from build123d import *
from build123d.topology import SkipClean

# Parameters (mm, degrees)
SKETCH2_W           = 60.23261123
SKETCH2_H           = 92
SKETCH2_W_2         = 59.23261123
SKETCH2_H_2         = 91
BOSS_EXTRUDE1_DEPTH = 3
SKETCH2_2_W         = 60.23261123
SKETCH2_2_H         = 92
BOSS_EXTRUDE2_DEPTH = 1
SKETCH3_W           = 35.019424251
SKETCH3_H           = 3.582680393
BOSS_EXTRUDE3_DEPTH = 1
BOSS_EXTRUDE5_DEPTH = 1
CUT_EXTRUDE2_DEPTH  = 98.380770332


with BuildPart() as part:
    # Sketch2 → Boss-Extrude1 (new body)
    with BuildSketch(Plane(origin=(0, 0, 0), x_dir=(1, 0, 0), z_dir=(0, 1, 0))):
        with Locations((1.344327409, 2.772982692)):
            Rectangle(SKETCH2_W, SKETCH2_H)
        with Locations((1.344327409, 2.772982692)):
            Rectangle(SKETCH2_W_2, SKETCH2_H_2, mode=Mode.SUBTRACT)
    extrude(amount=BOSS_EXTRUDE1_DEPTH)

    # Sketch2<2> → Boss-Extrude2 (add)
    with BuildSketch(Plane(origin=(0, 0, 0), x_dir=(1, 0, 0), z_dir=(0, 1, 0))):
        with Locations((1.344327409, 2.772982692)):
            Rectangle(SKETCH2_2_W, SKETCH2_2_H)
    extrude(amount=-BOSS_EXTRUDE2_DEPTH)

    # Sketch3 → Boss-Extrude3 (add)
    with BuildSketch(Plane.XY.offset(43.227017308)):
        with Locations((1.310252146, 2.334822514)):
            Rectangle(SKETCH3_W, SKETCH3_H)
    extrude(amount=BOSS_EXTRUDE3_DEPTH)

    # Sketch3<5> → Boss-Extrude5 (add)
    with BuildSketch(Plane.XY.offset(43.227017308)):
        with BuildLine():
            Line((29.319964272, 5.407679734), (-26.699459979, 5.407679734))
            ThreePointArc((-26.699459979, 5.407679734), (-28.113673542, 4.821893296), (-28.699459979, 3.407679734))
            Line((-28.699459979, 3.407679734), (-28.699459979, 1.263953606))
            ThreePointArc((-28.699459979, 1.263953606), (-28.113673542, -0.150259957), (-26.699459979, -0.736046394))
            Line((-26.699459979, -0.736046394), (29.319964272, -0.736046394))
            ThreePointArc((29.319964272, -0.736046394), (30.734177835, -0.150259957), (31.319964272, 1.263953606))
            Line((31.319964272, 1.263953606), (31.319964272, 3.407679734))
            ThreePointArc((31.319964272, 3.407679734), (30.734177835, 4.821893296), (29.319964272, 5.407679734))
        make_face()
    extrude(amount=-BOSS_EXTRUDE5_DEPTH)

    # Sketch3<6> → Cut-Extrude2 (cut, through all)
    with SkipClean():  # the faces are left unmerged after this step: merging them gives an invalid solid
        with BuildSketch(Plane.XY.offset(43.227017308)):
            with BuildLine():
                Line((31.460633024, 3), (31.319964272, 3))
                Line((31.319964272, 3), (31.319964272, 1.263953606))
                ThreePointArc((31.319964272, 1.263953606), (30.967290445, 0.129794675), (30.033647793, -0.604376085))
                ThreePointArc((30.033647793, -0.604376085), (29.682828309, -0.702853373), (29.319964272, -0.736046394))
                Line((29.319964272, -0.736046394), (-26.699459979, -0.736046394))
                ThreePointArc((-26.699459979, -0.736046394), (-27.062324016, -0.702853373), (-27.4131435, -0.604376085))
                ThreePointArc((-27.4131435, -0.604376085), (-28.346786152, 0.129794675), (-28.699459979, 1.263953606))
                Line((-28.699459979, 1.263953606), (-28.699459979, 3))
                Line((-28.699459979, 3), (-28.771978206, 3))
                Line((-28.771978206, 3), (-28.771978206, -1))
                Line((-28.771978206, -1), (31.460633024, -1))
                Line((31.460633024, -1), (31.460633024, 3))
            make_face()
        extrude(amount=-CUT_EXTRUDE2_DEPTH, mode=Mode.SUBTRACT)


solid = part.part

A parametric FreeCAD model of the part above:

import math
import FreeCAD as App
import Part
import Sketcher

V = App.Vector

doc = App.newDocument("Part")
params = doc.addObject("Spreadsheet::Sheet", "Params")
for row, (alias, value) in enumerate([
    ("sketch1_height", "92 mm"),
    ("sketch1_height2", "91 mm"),
    ("pad1_length", "3 mm"),
    ("sketch2_height", "92 mm"),
    ("pad2_length", "1 mm"),
    ("pad3_length", "1 mm"),
    ("sketch4_radius", "2 mm"),
    ("pad4_length", "1 mm"),
    ("sketch5_radius", "2 mm"),
    ("sketch5_height", "4 mm"),
], start=1):
    params.set(f"A{row}", alias)
    params.set(f"B{row}", "=" + value)
    params.setAlias(f"B{row}", alias)

body = doc.addObject("PartDesign::Body", "Body")

# Sketch on XZ plane
sketch1 = body.newObject("Sketcher::SketchObject", "Sketch")
sketch1.AttachmentSupport = (doc.getObject("XZ_Plane"), [""])
sketch1.MapMode = "FlatFace"
sketch1.addGeometry([
    Part.LineSegment(V(-29, -49, 0), V(-29, 43, 0)),  # 0
    Part.LineSegment(V(-29, 43, 0), V(31, 43, 0)),  # 1
    Part.LineSegment(V(31, 43, 0), V(31, -49, 0)),  # 2
    Part.LineSegment(V(31, -49, 0), V(-29, -49, 0)),  # 3
    Part.LineSegment(V(31, 43, 0), V(-28, 43, 0)),  # 4
    Part.LineSegment(V(-28, 43, 0), V(-28, -48, 0)),  # 5
    Part.LineSegment(V(-28, -48, 0), V(31, -48, 0)),  # 6
    Part.LineSegment(V(31, -48, 0), V(31, 43, 0)),  # 7
], False)
sketch1.addConstraint([
    Sketcher.Constraint("Coincident", 0, 2, 1, 1),
    Sketcher.Constraint("Coincident", 1, 2, 2, 1),
    Sketcher.Constraint("Coincident", 2, 2, 3, 1),
    Sketcher.Constraint("Coincident", 3, 2, 0, 1),
    Sketcher.Constraint("Coincident", 4, 2, 5, 1),
    Sketcher.Constraint("Coincident", 5, 2, 6, 1),
    Sketcher.Constraint("Coincident", 6, 2, 7, 1),
    Sketcher.Constraint("Coincident", 7, 2, 4, 1),
    Sketcher.Constraint("Vertical", 0),
    Sketcher.Constraint("Horizontal", 1),
    Sketcher.Constraint("Vertical", 2),
    Sketcher.Constraint("Horizontal", 3),
    Sketcher.Constraint("Horizontal", 4),
    Sketcher.Constraint("Vertical", 5),
    Sketcher.Constraint("Horizontal", 6),
    Sketcher.Constraint("Vertical", 7),
    Sketcher.Constraint("DistanceY", 0, 1, 0, 2, 92.0),
    Sketcher.Constraint("DistanceY", 5, 2, 5, 1, 91.0),
    Sketcher.Constraint("DistanceX", 0, 2, 4, 2, 0.5),
    Sketcher.Constraint("DistanceY", 4, 2, 0, 2, 0.5),
    Sketcher.Constraint("DistanceX", 6, 2, 2, 2, 0.5),
    Sketcher.Constraint("DistanceX", 1, 1, 1, 2, 60.232611),
    Sketcher.Constraint("DistanceX", 0, 2, -1, 1, 28.771978),
    Sketcher.Constraint("DistanceY", -1, 1, 0, 2, 43.227017),
])
sketch1.setExpression("Constraints[16]", "Params.sketch1_height")
sketch1.setExpression("Constraints[17]", "Params.sketch1_height2")
pad1 = body.newObject("PartDesign::Pad", "Pad")
pad1.Profile = sketch1
pad1.setExpression("Length", "Params.pad1_length")
pad1.Reversed = True

# Sketch on XZ plane
sketch2 = body.newObject("Sketcher::SketchObject", "Sketch001")
sketch2.AttachmentSupport = (doc.getObject("XZ_Plane"), [""])
sketch2.MapMode = "FlatFace"
sketch2.addGeometry([
    Part.LineSegment(V(-29, -49, 0), V(-29, 43, 0)),
    Part.LineSegment(V(-29, 43, 0), V(31, 43, 0)),
    Part.LineSegment(V(31, 43, 0), V(31, -49, 0)),
    Part.LineSegment(V(31, -49, 0), V(-29, -49, 0)),
], False)
sketch2.addConstraint([
    Sketcher.Constraint("Coincident", 0, 2, 1, 1),
    Sketcher.Constraint("Coincident", 1, 2, 2, 1),
    Sketcher.Constraint("Coincident", 2, 2, 3, 1),
    Sketcher.Constraint("Coincident", 3, 2, 0, 1),
    Sketcher.Constraint("Vertical", 0),
    Sketcher.Constraint("Horizontal", 1),
    Sketcher.Constraint("Vertical", 2),
    Sketcher.Constraint("Horizontal", 3),
    Sketcher.Constraint("DistanceY", 0, 1, 0, 2, 92.0),
    Sketcher.Constraint("DistanceX", 1, 1, 1, 2, 60.232611),
    Sketcher.Constraint("DistanceX", 0, 2, -1, 1, 28.771978),
    Sketcher.Constraint("DistanceY", -1, 1, 0, 2, 43.227017),
])
sketch2.setExpression("Constraints[8]", "Params.sketch2_height")
pad2 = body.newObject("PartDesign::Pad", "Pad001")
pad2.Profile = sketch2
pad2.setExpression("Length", "Params.pad2_length")

# Sketch on XY plane
sketch3 = body.newObject("Sketcher::SketchObject", "Sketch002")
sketch3.AttachmentSupport = (doc.getObject("XY_Plane"), [""])
sketch3.MapMode = "FlatFace"
sketch3.AttachmentOffset = App.Placement(V(0, 0, 43.227017), App.Rotation())
sketch3.addGeometry([
    Part.LineSegment(V(-16.2, 4.1, 0), V(-16.2, 0.5, 0)),
    Part.LineSegment(V(-16.2, 0.5, 0), V(18.8, 0.5, 0)),
    Part.LineSegment(V(18.8, 0.5, 0), V(18.8, 4.1, 0)),
    Part.LineSegment(V(18.8, 4.1, 0), V(-16.2, 4.1, 0)),
], False)
sketch3.addConstraint([
    Sketcher.Constraint("Coincident", 0, 2, 1, 1),
    Sketcher.Constraint("Coincident", 1, 2, 2, 1),
    Sketcher.Constraint("Coincident", 2, 2, 3, 1),
    Sketcher.Constraint("Coincident", 3, 2, 0, 1),
    Sketcher.Constraint("Vertical", 0),
    Sketcher.Constraint("Horizontal", 1),
    Sketcher.Constraint("Vertical", 2),
    Sketcher.Constraint("Horizontal", 3),
    Sketcher.Constraint("DistanceY", 0, 2, 0, 1, 3.58268),
    Sketcher.Constraint("DistanceX", 1, 1, 1, 2, 35.019424),
    Sketcher.Constraint("DistanceX", 0, 2, -1, 1, 16.19946),
    Sketcher.Constraint("DistanceY", -1, 1, 0, 2, 0.543482),
])
pad3 = body.newObject("PartDesign::Pad", "Pad002")
pad3.Profile = sketch3
pad3.setExpression("Length", "Params.pad3_length")

# Sketch on XY plane
sketch4 = body.newObject("Sketcher::SketchObject", "Sketch003")
sketch4.AttachmentSupport = (doc.getObject("XY_Plane"), [""])
sketch4.MapMode = "FlatFace"
sketch4.AttachmentOffset = App.Placement(V(0, 0, 43.227017), App.Rotation())
sketch4.addGeometry([
    Part.LineSegment(V(29.3, 5.4, 0), V(-26.7, 5.4, 0)),  # 0
    Part.ArcOfCircle(Part.Circle(V(-26.7, 3.4, 0), V(0, 0, 1), 2), math.radians(90), math.radians(180)),  # 1
    Part.LineSegment(V(-28.7, 3.4, 0), V(-28.7, 1.3, 0)),  # 2
    Part.ArcOfCircle(Part.Circle(V(-26.7, 1.3, 0), V(0, 0, 1), 2), math.radians(180), math.radians(270)),  # 3
    Part.LineSegment(V(-26.7, -0.7, 0), V(29.3, -0.7, 0)),  # 4
    Part.ArcOfCircle(Part.Circle(V(29.3, 1.3, 0), V(0, 0, 1), 2), math.radians(-90), math.radians(0)),  # 5
    Part.LineSegment(V(31.3, 1.3, 0), V(31.3, 3.4, 0)),  # 6
    Part.ArcOfCircle(Part.Circle(V(29.3, 3.4, 0), V(0, 0, 1), 2), math.radians(0), math.radians(90)),  # 7
], False)
sketch4.addConstraint([
    Sketcher.Constraint("Tangent", 0, 2, 1, 1),
    Sketcher.Constraint("Tangent", 1, 2, 2, 1),
    Sketcher.Constraint("Tangent", 2, 2, 3, 1),
    Sketcher.Constraint("Tangent", 3, 2, 4, 1),
    Sketcher.Constraint("Tangent", 4, 2, 5, 1),
    Sketcher.Constraint("Tangent", 5, 2, 6, 1),
    Sketcher.Constraint("Tangent", 6, 2, 7, 1),
    Sketcher.Constraint("Tangent", 7, 2, 0, 1),
    Sketcher.Constraint("Horizontal", 0),
    Sketcher.Constraint("Vertical", 2),
    Sketcher.Constraint("Horizontal", 4),
    Sketcher.Constraint("Vertical", 6),
    Sketcher.Constraint("Equal", 1, 3),
    Sketcher.Constraint("Equal", 3, 5),
    Sketcher.Constraint("Equal", 5, 7),
    Sketcher.Constraint("Radius", 1, 2.0),
    Sketcher.Constraint("DistanceX", 0, 2, 0, 1, 56.019424),
    Sketcher.Constraint("DistanceY", 2, 2, 2, 1, 2.143726),
    Sketcher.Constraint("DistanceX", 1, 3, -1, 1, 26.69946),
    Sketcher.Constraint("DistanceY", -1, 1, 1, 3, 3.40768),
])
sketch4.setExpression("Constraints[15]", "Params.sketch4_radius")
pad4 = body.newObject("PartDesign::Pad", "Pad003")
pad4.Profile = sketch4
pad4.setExpression("Length", "Params.pad4_length")
pad4.Reversed = True

# Sketch on XY plane
sketch5 = body.newObject("Sketcher::SketchObject", "Sketch004")
sketch5.AttachmentSupport = (doc.getObject("XY_Plane"), [""])
sketch5.MapMode = "FlatFace"
sketch5.AttachmentOffset = App.Placement(V(0, 0, 43.227017), App.Rotation())
sketch5.addGeometry([
    Part.LineSegment(V(31.46, 3, 0), V(31.32, 3, 0)),  # 0
    Part.LineSegment(V(31.32, 3, 0), V(31.32, 1.26, 0)),  # 1
    Part.ArcOfCircle(Part.Circle(V(29.32, 1.26, 0), V(0, 0, 1), 2), math.radians(-69), math.radians(0)),  # 2
    Part.ArcOfCircle(Part.Circle(V(29.32, 1.26, 0), V(0, 0, 1), 2), math.radians(-90), math.radians(-69)),  # 3
    Part.LineSegment(V(29.32, -0.74, 0), V(-26.7, -0.74, 0)),  # 4
    Part.ArcOfCircle(Part.Circle(V(-26.7, 1.26, 0), V(0, 0, 1), 2), math.radians(-111), math.radians(-90)),  # 5
    Part.ArcOfCircle(Part.Circle(V(-26.7, 1.26, 0), V(0, 0, 1), 2), math.radians(180), math.radians(249)),  # 6
    Part.LineSegment(V(-28.7, 1.26, 0), V(-28.7, 3, 0)),  # 7
    Part.LineSegment(V(-28.7, 3, 0), V(-28.77, 3, 0)),  # 8
    Part.LineSegment(V(-28.77, 3, 0), V(-28.77, -1, 0)),  # 9
    Part.LineSegment(V(-28.77, -1, 0), V(31.46, -1, 0)),  # 10
    Part.LineSegment(V(31.46, -1, 0), V(31.46, 3, 0)),  # 11
], False)
sketch5.addConstraint([
    Sketcher.Constraint("Coincident", 0, 2, 1, 1),
    Sketcher.Constraint("Tangent", 1, 2, 2, 2),
    Sketcher.Constraint("Tangent", 2, 1, 3, 2),
    Sketcher.Constraint("Tangent", 3, 1, 4, 1),
    Sketcher.Constraint("Tangent", 4, 2, 5, 2),
    Sketcher.Constraint("Tangent", 5, 1, 6, 2),
    Sketcher.Constraint("Tangent", 6, 1, 7, 1),
    Sketcher.Constraint("Coincident", 7, 2, 8, 1),
    Sketcher.Constraint("Coincident", 8, 2, 9, 1),
    Sketcher.Constraint("Coincident", 9, 2, 10, 1),
    Sketcher.Constraint("Coincident", 10, 2, 11, 1),
    Sketcher.Constraint("Coincident", 11, 2, 0, 1),
    Sketcher.Constraint("Horizontal", 0),
    Sketcher.Constraint("Vertical", 1),
    Sketcher.Constraint("Horizontal", 4),
    Sketcher.Constraint("Vertical", 7),
    Sketcher.Constraint("Horizontal", 8),
    Sketcher.Constraint("Vertical", 9),
    Sketcher.Constraint("Horizontal", 10),
    Sketcher.Constraint("Vertical", 11),
    Sketcher.Constraint("Equal", 2, 3),
    Sketcher.Constraint("Equal", 3, 5),
    Sketcher.Constraint("Equal", 5, 6),
    Sketcher.Constraint("Horizontal", 2, 1, 5, 1),
    Sketcher.Constraint("Horizontal", 0, 2, 7, 2),
    Sketcher.Constraint("Radius", 2, 2.0),
    Sketcher.Constraint("DistanceY", 9, 2, 9, 1, 4.0),
    Sketcher.Constraint("DistanceY", -1, 1, 0, 2, 3.0),
    Sketcher.Constraint("DistanceX", 0, 2, 0, 1, 0.140669),
    Sketcher.Constraint("DistanceX", 8, 2, 8, 1, 0.072518),
    Sketcher.Constraint("DistanceX", 10, 1, 10, 2, 60.232611),
    Sketcher.Constraint("DistanceY", 1, 2, 1, 1, 1.736046),
    Sketcher.Constraint("DistanceX", 5, 3, -1, 1, 26.69946),
    Sketcher.Constraint("DistanceY", 2, 1, 3, 3, 1.86833),
])
sketch5.setExpression("Constraints[25]", "Params.sketch5_radius")
sketch5.setExpression("Constraints[26]", "Params.sketch5_height")
pocket1 = body.newObject("PartDesign::Pocket", "Pocket")
pocket1.Profile = sketch5
pocket1.Type = "ThroughAll"

doc.recompute()
